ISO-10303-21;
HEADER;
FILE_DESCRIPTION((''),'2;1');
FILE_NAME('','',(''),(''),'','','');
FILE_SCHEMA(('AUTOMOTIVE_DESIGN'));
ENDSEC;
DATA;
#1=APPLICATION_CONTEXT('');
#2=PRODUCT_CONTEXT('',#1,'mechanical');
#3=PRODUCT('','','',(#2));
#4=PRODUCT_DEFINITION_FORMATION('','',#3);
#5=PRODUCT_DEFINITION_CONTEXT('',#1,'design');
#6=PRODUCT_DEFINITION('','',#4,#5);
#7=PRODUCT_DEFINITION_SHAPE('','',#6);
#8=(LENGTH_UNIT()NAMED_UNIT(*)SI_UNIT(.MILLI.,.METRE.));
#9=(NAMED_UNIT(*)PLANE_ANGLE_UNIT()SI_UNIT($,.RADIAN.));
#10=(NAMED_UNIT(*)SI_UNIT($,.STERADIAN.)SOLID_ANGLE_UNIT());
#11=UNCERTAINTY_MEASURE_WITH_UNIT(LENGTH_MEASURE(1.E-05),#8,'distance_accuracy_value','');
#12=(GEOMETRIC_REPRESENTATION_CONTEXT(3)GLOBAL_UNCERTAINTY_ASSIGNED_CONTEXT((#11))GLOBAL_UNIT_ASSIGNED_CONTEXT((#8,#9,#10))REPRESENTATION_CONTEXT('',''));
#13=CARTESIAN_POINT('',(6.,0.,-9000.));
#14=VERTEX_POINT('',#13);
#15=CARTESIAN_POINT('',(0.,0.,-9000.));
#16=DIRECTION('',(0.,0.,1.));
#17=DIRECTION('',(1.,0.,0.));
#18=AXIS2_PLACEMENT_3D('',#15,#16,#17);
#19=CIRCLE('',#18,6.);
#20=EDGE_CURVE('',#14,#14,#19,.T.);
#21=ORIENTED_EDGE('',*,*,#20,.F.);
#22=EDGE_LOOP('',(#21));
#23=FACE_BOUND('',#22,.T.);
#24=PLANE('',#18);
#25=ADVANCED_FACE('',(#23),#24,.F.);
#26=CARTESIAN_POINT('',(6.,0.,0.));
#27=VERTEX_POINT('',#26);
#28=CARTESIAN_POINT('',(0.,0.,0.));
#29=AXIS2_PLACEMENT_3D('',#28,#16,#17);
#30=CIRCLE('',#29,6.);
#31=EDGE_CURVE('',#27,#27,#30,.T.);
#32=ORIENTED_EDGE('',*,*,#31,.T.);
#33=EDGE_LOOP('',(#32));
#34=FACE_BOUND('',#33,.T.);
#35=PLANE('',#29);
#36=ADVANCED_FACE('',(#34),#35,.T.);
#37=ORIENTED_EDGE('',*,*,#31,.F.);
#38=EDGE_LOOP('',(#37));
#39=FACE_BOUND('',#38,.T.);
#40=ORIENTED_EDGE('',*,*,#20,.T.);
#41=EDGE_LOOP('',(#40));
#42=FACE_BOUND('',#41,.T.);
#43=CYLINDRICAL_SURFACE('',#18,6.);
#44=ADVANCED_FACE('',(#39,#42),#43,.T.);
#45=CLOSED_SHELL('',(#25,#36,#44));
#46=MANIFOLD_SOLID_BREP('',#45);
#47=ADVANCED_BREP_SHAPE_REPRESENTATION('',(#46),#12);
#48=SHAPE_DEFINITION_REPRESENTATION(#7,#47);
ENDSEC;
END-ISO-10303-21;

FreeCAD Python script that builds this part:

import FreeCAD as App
import Part
import Sketcher

V = App.Vector

doc = App.newDocument("Part")
body = doc.addObject("PartDesign::Body", "Body")

sketch1 = body.newObject("Sketcher::SketchObject", "Sketch")
sketch1.AttachmentSupport = (doc.getObject("XY_Plane"), [""])
sketch1.MapMode = "FlatFace"
sketch1.addGeometry(Part.Circle(V(0, 0, 0), V(0, 0, 1), 6), False)
sketch1.addConstraint([
    Sketcher.Constraint("Coincident", 0, 3, -1, 1),
    Sketcher.Constraint("Diameter", 0, 12.0),
])
pad1 = body.newObject("PartDesign::Pad", "Pad")
pad1.Profile = sketch1
pad1.Length = 9000
pad1.Reversed = True

doc.recompute()
